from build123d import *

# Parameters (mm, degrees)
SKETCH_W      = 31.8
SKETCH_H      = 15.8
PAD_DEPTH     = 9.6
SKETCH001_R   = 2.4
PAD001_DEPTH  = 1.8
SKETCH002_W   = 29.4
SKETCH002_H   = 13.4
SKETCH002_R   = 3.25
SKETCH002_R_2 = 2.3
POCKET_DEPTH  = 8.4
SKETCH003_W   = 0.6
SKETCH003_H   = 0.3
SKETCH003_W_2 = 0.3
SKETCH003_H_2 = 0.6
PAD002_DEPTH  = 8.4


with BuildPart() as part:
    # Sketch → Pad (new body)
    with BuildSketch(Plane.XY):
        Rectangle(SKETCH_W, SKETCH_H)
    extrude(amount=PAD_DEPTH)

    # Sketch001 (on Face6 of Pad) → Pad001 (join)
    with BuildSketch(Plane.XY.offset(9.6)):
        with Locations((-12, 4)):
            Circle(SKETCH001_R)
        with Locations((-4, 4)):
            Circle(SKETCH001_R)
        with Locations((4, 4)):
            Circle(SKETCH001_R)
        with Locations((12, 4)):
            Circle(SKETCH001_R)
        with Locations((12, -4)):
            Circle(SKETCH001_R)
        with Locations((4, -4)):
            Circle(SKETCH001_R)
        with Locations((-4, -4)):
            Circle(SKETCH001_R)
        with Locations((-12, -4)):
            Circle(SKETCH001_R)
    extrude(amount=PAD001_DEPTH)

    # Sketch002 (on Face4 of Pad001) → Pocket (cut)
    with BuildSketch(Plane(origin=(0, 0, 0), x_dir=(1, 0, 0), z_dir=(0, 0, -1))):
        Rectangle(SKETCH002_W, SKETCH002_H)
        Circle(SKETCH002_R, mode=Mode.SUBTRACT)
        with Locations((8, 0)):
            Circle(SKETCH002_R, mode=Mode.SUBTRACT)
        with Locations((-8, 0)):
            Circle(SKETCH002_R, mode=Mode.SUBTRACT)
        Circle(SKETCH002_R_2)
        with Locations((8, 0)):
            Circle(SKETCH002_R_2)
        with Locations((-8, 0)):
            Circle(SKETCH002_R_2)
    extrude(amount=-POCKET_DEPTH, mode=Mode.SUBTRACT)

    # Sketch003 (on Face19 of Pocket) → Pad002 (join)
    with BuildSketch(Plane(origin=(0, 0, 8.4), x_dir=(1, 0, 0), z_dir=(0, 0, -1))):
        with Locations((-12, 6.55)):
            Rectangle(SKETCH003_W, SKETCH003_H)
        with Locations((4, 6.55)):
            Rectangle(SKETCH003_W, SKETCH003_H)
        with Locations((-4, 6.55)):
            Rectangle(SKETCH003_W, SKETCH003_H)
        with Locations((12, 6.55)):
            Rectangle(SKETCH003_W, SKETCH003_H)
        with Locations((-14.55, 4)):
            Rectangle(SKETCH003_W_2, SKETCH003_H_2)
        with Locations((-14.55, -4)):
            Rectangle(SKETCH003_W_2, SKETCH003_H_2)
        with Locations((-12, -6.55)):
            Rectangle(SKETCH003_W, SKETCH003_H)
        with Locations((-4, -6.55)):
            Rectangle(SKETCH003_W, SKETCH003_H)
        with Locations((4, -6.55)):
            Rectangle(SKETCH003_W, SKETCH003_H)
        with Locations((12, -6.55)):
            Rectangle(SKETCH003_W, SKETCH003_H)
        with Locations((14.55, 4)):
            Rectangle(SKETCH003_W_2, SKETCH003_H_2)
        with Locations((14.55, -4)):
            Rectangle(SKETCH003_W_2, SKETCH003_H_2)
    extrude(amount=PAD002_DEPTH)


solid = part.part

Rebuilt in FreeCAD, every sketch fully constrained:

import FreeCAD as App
import Part
import Sketcher
from FreeCAD import Vector

doc = App.newDocument("Part")
body = doc.addObject("PartDesign::Body", "Body")

# Sketch on XY plane
sketch1 = doc.addObject("Sketcher::SketchObject", "Sketch")
body.addObject(sketch1)
sketch1.AttachmentSupport = (doc.XY_Plane, [""])
sketch1.MapMode = "FlatFace"
sketch1.addGeometry(Part.LineSegment(Vector(-16, 8, 0), Vector(-16, -8, 0)), False)
sketch1.addGeometry(Part.LineSegment(Vector(-16, -8, 0), Vector(16, -8, 0)), False)
sketch1.addGeometry(Part.LineSegment(Vector(16, -8, 0), Vector(16, 8, 0)), False)
sketch1.addGeometry(Part.LineSegment(Vector(16, 8, 0), Vector(-16, 8, 0)), False)
sketch1.addConstraint(Sketcher.Constraint("Coincident", 0, 2, 1, 1))
sketch1.addConstraint(Sketcher.Constraint("Coincident", 1, 2, 2, 1))
sketch1.addConstraint(Sketcher.Constraint("Coincident", 2, 2, 3, 1))
sketch1.addConstraint(Sketcher.Constraint("Coincident", 3, 2, 0, 1))
sketch1.addConstraint(Sketcher.Constraint("Vertical", 0))
sketch1.addConstraint(Sketcher.Constraint("Horizontal", 1))
sketch1.addConstraint(Sketcher.Constraint("Vertical", 2))
sketch1.addConstraint(Sketcher.Constraint("Horizontal", 3))
sketch1.addConstraint(Sketcher.Constraint("Symmetric", 0, 2, 2, 2, -1, 1))
sketch1.addConstraint(Sketcher.Constraint("DistanceX", 1, 1, 1, 2, 31.8))
sketch1.addConstraint(Sketcher.Constraint("DistanceY", 0, 2, 0, 1, 15.8))
pad1 = doc.addObject("PartDesign::Pad", "Pad")
body.addObject(pad1)
pad1.Profile = sketch1
pad1.Length = 9.6

# Sketch on XY plane
sketch2 = doc.addObject("Sketcher::SketchObject", "Sketch001")
body.addObject(sketch2)
sketch2.AttachmentSupport = (doc.XY_Plane, [""])
sketch2.MapMode = "FlatFace"
sketch2.AttachmentOffset = App.Placement(Vector(0, 0, 9.6), App.Rotation())
sketch2.addGeometry(Part.Circle(Vector(-12, 4, 0), Vector(0, 0, 1), 2.4), False)
sketch2.addGeometry(Part.Circle(Vector(-4, 4, 0), Vector(0, 0, 1), 2.4), False)
sketch2.addGeometry(Part.Circle(Vector(4, 4, 0), Vector(0, 0, 1), 2.4), False)
sketch2.addGeometry(Part.Circle(Vector(12, 4, 0), Vector(0, 0, 1), 2.4), False)
sketch2.addGeometry(Part.Circle(Vector(12, -4, 0), Vector(0, 0, 1), 2.4), False)
sketch2.addGeometry(Part.Circle(Vector(4, -4, 0), Vector(0, 0, 1), 2.4), False)
sketch2.addGeometry(Part.Circle(Vector(-4, -4, 0), Vector(0, 0, 1), 2.4), False)
sketch2.addGeometry(Part.Circle(Vector(-12, -4, 0), Vector(0, 0, 1), 2.4), False)
sketch2.addConstraint(Sketcher.Constraint("Equal", 0, 1))
sketch2.addConstraint(Sketcher.Constraint("Equal", 1, 2))
sketch2.addConstraint(Sketcher.Constraint("Equal", 2, 3))
sketch2.addConstraint(Sketcher.Constraint("Equal", 3, 4))
sketch2.addConstraint(Sketcher.Constraint("Equal", 4, 5))
sketch2.addConstraint(Sketcher.Constraint("Equal", 5, 6))
sketch2.addConstraint(Sketcher.Constraint("Equal", 6, 7))
sketch2.addConstraint(Sketcher.Constraint("Symmetric", 0, 3, 4, 3, -1, 1))
sketch2.addConstraint(Sketcher.Constraint("Symmetric", 1, 3, 5, 3, -1, 1))
sketch2.addConstraint(Sketcher.Constraint("Symmetric", 2, 3, 6, 3, -1, 1))
sketch2.addConstraint(Sketcher.Constraint("Symmetric", 3, 3, 7, 3, -1, 1))
sketch2.addConstraint(Sketcher.Constraint("Symmetric", 1, 3, 2, 3, -2))
sketch2.addConstraint(Sketcher.Constraint("Symmetric", 0, 3, 3, 3, -2))
sketch2.addConstraint(Sketcher.Constraint("Horizontal", 0, 3, 1, 3))
sketch2.addConstraint(Sketcher.Constraint("Diameter", 0, 4.8))
sketch2.addConstraint(Sketcher.Constraint("DistanceX", 0, 3, -1, 1, 12.0))
sketch2.addConstraint(Sketcher.Constraint("DistanceY", -1, 1, 0, 3, 4.0))
sketch2.addConstraint(Sketcher.Constraint("DistanceX", 1, 3, -1, 1, 4.0))
pad2 = doc.addObject("PartDesign::Pad", "Pad001")
body.addObject(pad2)
pad2.Profile = sketch2
pad2.Length = 1.8

# Sketch on XY plane
sketch3 = doc.addObject("Sketcher::SketchObject", "Sketch002")
body.addObject(sketch3)
sketch3.AttachmentSupport = (doc.XY_Plane, [""])
sketch3.MapMode = "FlatFace"
sketch3.addGeometry(Part.LineSegment(Vector(-14.7, -6.7, 0), Vector(-14.7, 6.7, 0)), False)
sketch3.addGeometry(Part.LineSegment(Vector(-14.7, 6.7, 0), Vector(14.7, 6.7, 0)), False)
sketch3.addGeometry(Part.LineSegment(Vector(14.7, 6.7, 0), Vector(14.7, -6.7, 0)), False)
sketch3.addGeometry(Part.LineSegment(Vector(14.7, -6.7, 0), Vector(-14.7, -6.7, 0)), False)
sketch3.addGeometry(Part.Circle(Vector(-8, 0, 0), Vector(0, 0, 1), 3.2), False)
sketch3.addGeometry(Part.Circle(Vector(0, 0, 0), Vector(0, 0, 1), 3.2), False)
sketch3.addGeometry(Part.Circle(Vector(8, 0, 0), Vector(0, 0, 1), 3.2), False)
sketch3.addGeometry(Part.Circle(Vector(0, 0, 0), Vector(0, 0, 1), 2.3), False)
sketch3.addGeometry(Part.Circle(Vector(8, 0, 0), Vector(0, 0, 1), 2.3), False)
sketch3.addGeometry(Part.Circle(Vector(-8, 0, 0), Vector(0, 0, 1), 2.3), False)
sketch3.addConstraint(Sketcher.Constraint("Coincident", 0, 2, 1, 1))
sketch3.addConstraint(Sketcher.Constraint("Coincident", 1, 2, 2, 1))
sketch3.addConstraint(Sketcher.Constraint("Coincident", 2, 2, 3, 1))
sketch3.addConstraint(Sketcher.Constraint("Coincident", 3, 2, 0, 1))
sketch3.addConstraint(Sketcher.Constraint("Vertical", 0))
sketch3.addConstraint(Sketcher.Constraint("Horizontal", 1))
sketch3.addConstraint(Sketcher.Constraint("Vertical", 2))
sketch3.addConstraint(Sketcher.Constraint("Horizontal", 3))
sketch3.addConstraint(Sketcher.Constraint("Coincident", 5, 3, -1, 1))
sketch3.addConstraint(Sketcher.Constraint("Coincident", 7, 3, -1, 1))
sketch3.addConstraint(Sketcher.Constraint("Coincident", 8, 3, 6, 3))
sketch3.addConstraint(Sketcher.Constraint("Coincident", 9, 3, 4, 3))
sketch3.addConstraint(Sketcher.Constraint("Equal", 4, 5))
sketch3.addConstraint(Sketcher.Constraint("Equal", 5, 6))
sketch3.addConstraint(Sketcher.Constraint("Equal", 7, 8))
sketch3.addConstraint(Sketcher.Constraint("Equal", 8, 9))
sketch3.addConstraint(Sketcher.Constraint("Symmetric", 4, 3, 6, 3, -1, 1))
sketch3.addConstraint(Sketcher.Constraint("Symmetric", 0, 2, 2, 2, -1, 1))
sketch3.addConstraint(Sketcher.Constraint("PointOnObject", 4, 3, -1))
sketch3.addConstraint(Sketcher.Constraint("Diameter", 4, 6.5))
sketch3.addConstraint(Sketcher.Constraint("Diameter", 7, 4.6))
sketch3.addConstraint(Sketcher.Constraint("DistanceX", 1, 1, 1, 2, 29.4))
sketch3.addConstraint(Sketcher.Constraint("DistanceY", 0, 1, 0, 2, 13.4))
sketch3.addConstraint(Sketcher.Constraint("DistanceX", 4, 3, -1, 1, 8.0))
pocket1 = doc.addObject("PartDesign::Pocket", "Pocket")
body.addObject(pocket1)
pocket1.Profile = sketch3
pocket1.Length = 8.4
pocket1.Reversed = True

# Sketch on XY plane
sketch4 = doc.addObject("Sketcher::SketchObject", "Sketch003")
body.addObject(sketch4)
sketch4.AttachmentSupport = (doc.XY_Plane, [""])
sketch4.MapMode = "FlatFace"
sketch4.AttachmentOffset = App.Placement(Vector(0, 0, 8.4), App.Rotation())
sketch4.addGeometry(Part.LineSegment(Vector(-12.3, -6.7, 0), Vector(-12.3, -6.4, 0)), False)
sketch4.addGeometry(Part.LineSegment(Vector(-12.3, -6.4, 0), Vector(-11.7, -6.4, 0)), False)
sketch4.addGeometry(Part.LineSegment(Vector(-11.7, -6.4, 0), Vector(-11.7, -6.7, 0)), False)
sketch4.addGeometry(Part.LineSegment(Vector(-11.7, -6.7, 0), Vector(-12.3, -6.7, 0)), False)
sketch4.addGeometry(Part.LineSegment(Vector(3.7, -6.7, 0), Vector(3.7, -6.4, 0)), False)
sketch4.addGeometry(Part.LineSegment(Vector(3.7, -6.4, 0), Vector(4.3, -6.4, 0)), False)
sketch4.addGeometry(Part.LineSegment(Vector(4.3, -6.4, 0), Vector(4.3, -6.7, 0)), False)
sketch4.addGeometry(Part.LineSegment(Vector(4.3, -6.7, 0), Vector(3.7, -6.7, 0)), False)
sketch4.addGeometry(Part.LineSegment(Vector(-4.3, -6.7, 0), Vector(-4.3, -6.4, 0)), False)
sketch4.addGeometry(Part.LineSegment(Vector(-4.3, -6.4, 0), Vector(-3.7, -6.4, 0)), False)
sketch4.addGeometry(Part.LineSegment(Vector(-3.7, -6.4, 0), Vector(-3.7, -6.7, 0)), False)
sketch4.addGeometry(Part.LineSegment(Vector(-3.7, -6.7, 0), Vector(-4.3, -6.7, 0)), False)
sketch4.addGeometry(Part.LineSegment(Vector(11.7, -6.7, 0), Vector(11.7, -6.4, 0)), False)
sketch4.addGeometry(Part.LineSegment(Vector(11.7, -6.4, 0), Vector(12.3, -6.4, 0)), False)
sketch4.addGeometry(Part.LineSegment(Vector(12.3, -6.4, 0), Vector(12.3, -6.7, 0)), False)
sketch4.addGeometry(Part.LineSegment(Vector(12.3, -6.7, 0), Vector(11.7, -6.7, 0)), False)
sketch4.addGeometry(Part.LineSegment(Vector(-14.7, -4.3, 0), Vector(-14.7, -3.7, 0)), False)
sketch4.addGeometry(Part.LineSegment(Vector(-14.7, -3.7, 0), Vector(-14.4, -3.7, 0)), False)
sketch4.addGeometry(Part.LineSegment(Vector(-14.4, -3.7, 0), Vector(-14.4, -4.3, 0)), False)
sketch4.addGeometry(Part.LineSegment(Vector(-14.4, -4.3, 0), Vector(-14.7, -4.3, 0)), False)
sketch4.addGeometry(Part.LineSegment(Vector(-14.7, 3.7, 0), Vector(-14.7, 4.3, 0)), False)
sketch4.addGeometry(Part.LineSegment(Vector(-14.7, 4.3, 0), Vector(-14.4, 4.3, 0)), False)
sketch4.addGeometry(Part.LineSegment(Vector(-14.4, 4.3, 0), Vector(-14.4, 3.7, 0)), False)
sketch4.addGeometry(Part.LineSegment(Vector(-14.4, 3.7, 0), Vector(-14.7, 3.7, 0)), False)
sketch4.addGeometry(Part.LineSegment(Vector(-12.3, 6.4, 0), Vector(-12.3, 6.7, 0)), False)
sketch4.addGeometry(Part.LineSegment(Vector(-12.3, 6.7, 0), Vector(-11.7, 6.7, 0)), False)
sketch4.addGeometry(Part.LineSegment(Vector(-11.7, 6.7, 0), Vector(-11.7, 6.4, 0)), False)
sketch4.addGeometry(Part.LineSegment(Vector(-11.7, 6.4, 0), Vector(-12.3, 6.4, 0)), False)
sketch4.addGeometry(Part.LineSegment(Vector(-4.3, 6.4, 0), Vector(-4.3, 6.7, 0)), False)
sketch4.addGeometry(Part.LineSegment(Vector(-4.3, 6.7, 0), Vector(-3.7, 6.7, 0)), False)
sketch4.addGeometry(Part.LineSegment(Vector(-3.7, 6.7, 0), Vector(-3.7, 6.4, 0)), False)
sketch4.addGeometry(Part.LineSegment(Vector(-3.7, 6.4, 0), Vector(-4.3, 6.4, 0)), False)
sketch4.addGeometry(Part.LineSegment(Vector(3.7, 6.4, 0), Vector(3.7, 6.7, 0)), False)
sketch4.addGeometry(Part.LineSegment(Vector(3.7, 6.7, 0), Vector(4.3, 6.7, 0)), False)
sketch4.addGeometry(Part.LineSegment(Vector(4.3, 6.7, 0), Vector(4.3, 6.4, 0)), False)
sketch4.addGeometry(Part.LineSegment(Vector(4.3, 6.4, 0), Vector(3.7, 6.4, 0)), False)
sketch4.addGeometry(Part.LineSegment(Vector(11.7, 6.4, 0), Vector(11.7, 6.7, 0)), False)
sketch4.addGeometry(Part.LineSegment(Vector(11.7, 6.7, 0), Vector(12.3, 6.7, 0)), False)
sketch4.addGeometry(Part.LineSegment(Vector(12.3, 6.7, 0), Vector(12.3, 6.4, 0)), False)
sketch4.addGeometry(Part.LineSegment(Vector(12.3, 6.4, 0), Vector(11.7, 6.4, 0)), False)
sketch4.addGeometry(Part.LineSegment(Vector(14.4, -4.3, 0), Vector(14.4, -3.7, 0)), False)
sketch4.addGeometry(Part.LineSegment(Vector(14.4, -3.7, 0), Vector(14.7, -3.7, 0)), False)
sketch4.addGeometry(Part.LineSegment(Vector(14.7, -3.7, 0), Vector(14.7, -4.3, 0)), False)
sketch4.addGeometry(Part.LineSegment(Vector(14.7, -4.3, 0), Vector(14.4, -4.3, 0)), False)
sketch4.addGeometry(Part.LineSegment(Vector(14.4, 3.7, 0), Vector(14.4, 4.3, 0)), False)
sketch4.addGeometry(Part.LineSegment(Vector(14.4, 4.3, 0), Vector(14.7, 4.3, 0)), False)
sketch4.addGeometry(Part.LineSegment(Vector(14.7, 4.3, 0), Vector(14.7, 3.7, 0)), False)
sketch4.addGeometry(Part.LineSegment(Vector(14.7, 3.7, 0), Vector(14.4, 3.7, 0)), False)
sketch4.addConstraint(Sketcher.Constraint("Coincident", 0, 2, 1, 1))
sketch4.addConstraint(Sketcher.Constraint("Coincident", 1, 2, 2, 1))
sketch4.addConstraint(Sketcher.Constraint("Coincident", 2, 2, 3, 1))
sketch4.addConstraint(Sketcher.Constraint("Coincident", 3, 2, 0, 1))
sketch4.addConstraint(Sketcher.Constraint("Coincident", 4, 2, 5, 1))
sketch4.addConstraint(Sketcher.Constraint("Coincident", 5, 2, 6, 1))
sketch4.addConstraint(Sketcher.Constraint("Coincident", 6, 2, 7, 1))
sketch4.addConstraint(Sketcher.Constraint("Coincident", 7, 2, 4, 1))
sketch4.addConstraint(Sketcher.Constraint("Coincident", 8, 2, 9, 1))
sketch4.addConstraint(Sketcher.Constraint("Coincident", 9, 2, 10, 1))
sketch4.addConstraint(Sketcher.Constraint("Coincident", 10, 2, 11, 1))
sketch4.addConstraint(Sketcher.Constraint("Coincident", 11, 2, 8, 1))
sketch4.addConstraint(Sketcher.Constraint("Coincident", 12, 2, 13, 1))
sketch4.addConstraint(Sketcher.Constraint("Coincident", 13, 2, 14, 1))
sketch4.addConstraint(Sketcher.Constraint("Coincident", 14, 2, 15, 1))
sketch4.addConstraint(Sketcher.Constraint("Coincident", 15, 2, 12, 1))
sketch4.addConstraint(Sketcher.Constraint("Coincident", 16, 2, 17, 1))
sketch4.addConstraint(Sketcher.Constraint("Coincident", 17, 2, 18, 1))
sketch4.addConstraint(Sketcher.Constraint("Coincident", 18, 2, 19, 1))
sketch4.addConstraint(Sketcher.Constraint("Coincident", 19, 2, 16, 1))
sketch4.addConstraint(Sketcher.Constraint("Coincident", 20, 2, 21, 1))
sketch4.addConstraint(Sketcher.Constraint("Coincident", 21, 2, 22, 1))
sketch4.addConstraint(Sketcher.Constraint("Coincident", 22, 2, 23, 1))
sketch4.addConstraint(Sketcher.Constraint("Coincident", 23, 2, 20, 1))
sketch4.addConstraint(Sketcher.Constraint("Coincident", 24, 2, 25, 1))
sketch4.addConstraint(Sketcher.Constraint("Coincident", 25, 2, 26, 1))
sketch4.addConstraint(Sketcher.Constraint("Coincident", 26, 2, 27, 1))
sketch4.addConstraint(Sketcher.Constraint("Coincident", 27, 2, 24, 1))
sketch4.addConstraint(Sketcher.Constraint("Coincident", 28, 2, 29, 1))
sketch4.addConstraint(Sketcher.Constraint("Coincident", 29, 2, 30, 1))
sketch4.addConstraint(Sketcher.Constraint("Coincident", 30, 2, 31, 1))
sketch4.addConstraint(Sketcher.Constraint("Coincident", 31, 2, 28, 1))
sketch4.addConstraint(Sketcher.Constraint("Coincident", 32, 2, 33, 1))
sketch4.addConstraint(Sketcher.Constraint("Coincident", 33, 2, 34, 1))
sketch4.addConstraint(Sketcher.Constraint("Coincident", 34, 2, 35, 1))
sketch4.addConstraint(Sketcher.Constraint("Coincident", 35, 2, 32, 1))
sketch4.addConstraint(Sketcher.Constraint("Coincident", 36, 2, 37, 1))
sketch4.addConstraint(Sketcher.Constraint("Coincident", 37, 2, 38, 1))
sketch4.addConstraint(Sketcher.Constraint("Coincident", 38, 2, 39, 1))
sketch4.addConstraint(Sketcher.Constraint("Coincident", 39, 2, 36, 1))
sketch4.addConstraint(Sketcher.Constraint("Coincident", 40, 2, 41, 1))
sketch4.addConstraint(Sketcher.Constraint("Coincident", 41, 2, 42, 1))
sketch4.addConstraint(Sketcher.Constraint("Coincident", 42, 2, 43, 1))
sketch4.addConstraint(Sketcher.Constraint("Coincident", 43, 2, 40, 1))
sketch4.addConstraint(Sketcher.Constraint("Coincident", 44, 2, 45, 1))
sketch4.addConstraint(Sketcher.Constraint("Coincident", 45, 2, 46, 1))
sketch4.addConstraint(Sketcher.Constraint("Coincident", 46, 2, 47, 1))
sketch4.addConstraint(Sketcher.Constraint("Coincident", 47, 2, 44, 1))
sketch4.addConstraint(Sketcher.Constraint("Vertical", 0))
sketch4.addConstraint(Sketcher.Constraint("Horizontal", 1))
sketch4.addConstraint(Sketcher.Constraint("Vertical", 2))
sketch4.addConstraint(Sketcher.Constraint("Horizontal", 3))
sketch4.addConstraint(Sketcher.Constraint("Vertical", 4))
sketch4.addConstraint(Sketcher.Constraint("Horizontal", 5))
sketch4.addConstraint(Sketcher.Constraint("Vertical", 6))
sketch4.addConstraint(Sketcher.Constraint("Horizontal", 7))
sketch4.addConstraint(Sketcher.Constraint("Vertical", 8))
sketch4.addConstraint(Sketcher.Constraint("Horizontal", 9))
sketch4.addConstraint(Sketcher.Constraint("Vertical", 10))
sketch4.addConstraint(Sketcher.Constraint("Horizontal", 11))
sketch4.addConstraint(Sketcher.Constraint("Vertical", 12))
sketch4.addConstraint(Sketcher.Constraint("Horizontal", 13))
sketch4.addConstraint(Sketcher.Constraint("Vertical", 14))
sketch4.addConstraint(Sketcher.Constraint("Horizontal", 15))
sketch4.addConstraint(Sketcher.Constraint("Vertical", 16))
sketch4.addConstraint(Sketcher.Constraint("Horizontal", 17))
sketch4.addConstraint(Sketcher.Constraint("Vertical", 18))
sketch4.addConstraint(Sketcher.Constraint("Horizontal", 19))
sketch4.addConstraint(Sketcher.Constraint("Vertical", 20))
sketch4.addConstraint(Sketcher.Constraint("Horizontal", 21))
sketch4.addConstraint(Sketcher.Constraint("Vertical", 22))
sketch4.addConstraint(Sketcher.Constraint("Horizontal", 23))
sketch4.addConstraint(Sketcher.Constraint("Vertical", 24))
sketch4.addConstraint(Sketcher.Constraint("Horizontal", 25))
sketch4.addConstraint(Sketcher.Constraint("Vertical", 26))
sketch4.addConstraint(Sketcher.Constraint("Horizontal", 27))
sketch4.addConstraint(Sketcher.Constraint("Vertical", 28))
sketch4.addConstraint(Sketcher.Constraint("Horizontal", 29))
sketch4.addConstraint(Sketcher.Constraint("Vertical", 30))
sketch4.addConstraint(Sketcher.Constraint("Horizontal", 31))
sketch4.addConstraint(Sketcher.Constraint("Vertical", 32))
sketch4.addConstraint(Sketcher.Constraint("Horizontal", 33))
sketch4.addConstraint(Sketcher.Constraint("Vertical", 34))
sketch4.addConstraint(Sketcher.Constraint("Horizontal", 35))
sketch4.addConstraint(Sketcher.Constraint("Vertical", 36))
sketch4.addConstraint(Sketcher.Constraint("Horizontal", 37))
sketch4.addConstraint(Sketcher.Constraint("Vertical", 38))
sketch4.addConstraint(Sketcher.Constraint("Horizontal", 39))
sketch4.addConstraint(Sketcher.Constraint("Vertical", 40))
sketch4.addConstraint(Sketcher.Constraint("Horizontal", 41))
sketch4.addConstraint(Sketcher.Constraint("Vertical", 42))
sketch4.addConstraint(Sketcher.Constraint("Horizontal", 43))
sketch4.addConstraint(Sketcher.Constraint("Vertical", 44))
sketch4.addConstraint(Sketcher.Constraint("Horizontal", 45))
sketch4.addConstraint(Sketcher.Constraint("Vertical", 46))
sketch4.addConstraint(Sketcher.Constraint("Horizontal", 47))
sketch4.addConstraint(Sketcher.Constraint("Symmetric", 14, 2, 24, 2, -1, 1))
sketch4.addConstraint(Sketcher.Constraint("Symmetric", 12, 2, 26, 2, -1, 1))
sketch4.addConstraint(Sketcher.Constraint("Symmetric", 6, 2, 28, 2, -1, 1))
sketch4.addConstraint(Sketcher.Constraint("Symmetric", 4, 2, 30, 2, -1, 1))
sketch4.addConstraint(Sketcher.Constraint("Symmetric", 10, 2, 32, 2, -1, 1))
sketch4.addConstraint(Sketcher.Constraint("Symmetric", 8, 2, 34, 2, -1, 1))
sketch4.addConstraint(Sketcher.Constraint("Symmetric", 2, 2, 36, 2, -1, 1))
sketch4.addConstraint(Sketcher.Constraint("Symmetric", 0, 2, 38, 2, -1, 1))
sketch4.addConstraint(Sketcher.Constraint("Symmetric", 22, 2, 40, 2, -1, 1))
sketch4.addConstraint(Sketcher.Constraint("Symmetric", 20, 2, 42, 2, -1, 1))
sketch4.addConstraint(Sketcher.Constraint("Symmetric", 18, 2, 44, 2, -1, 1))
sketch4.addConstraint(Sketcher.Constraint("Symmetric", 16, 2, 46, 2, -1, 1))
sketch4.addConstraint(Sketcher.Constraint("Symmetric", 5, 2, 8, 2, -2))
sketch4.addConstraint(Sketcher.Constraint("Symmetric", 7, 2, 10, 2, -2))
sketch4.addConstraint(Sketcher.Constraint("Symmetric", 1, 2, 12, 2, -2))
sketch4.addConstraint(Sketcher.Constraint("Symmetric", 3, 2, 14, 2, -2))
sketch4.addConstraint(Sketcher.Constraint("Symmetric", 17, 2, 40, 2, -2))
sketch4.addConstraint(Sketcher.Constraint("Symmetric", 19, 2, 42, 2, -2))
sketch4.addConstraint(Sketcher.Constraint("Horizontal", 1, 2, 4, 2))
sketch4.addConstraint(Sketcher.Constraint("Horizontal", 3, 2, 6, 2))
sketch4.addConstraint(Sketcher.Constraint("Equal", 3, 5))
sketch4.addConstraint(Sketcher.Constraint("Equal", 47, 0))
sketch4.addConstraint(Sketcher.Constraint("Equal", 39, 16))
sketch4.addConstraint(Sketcher.Constraint("DistanceX", 1, 1, 1, 2, 0.6))
sketch4.addConstraint(Sketcher.Constraint("DistanceX", 17, 1, 17, 2, 0.3))
sketch4.addConstraint(Sketcher.Constraint("DistanceX", 0, 2, 4, 2, 16.0))
sketch4.addConstraint(Sketcher.Constraint("DistanceX", 0, 2, 8, 2, 8.0))
sketch4.addConstraint(Sketcher.Constraint("DistanceY", 3, 2, 16, 2, 3.0))
sketch4.addConstraint(Sketcher.Constraint("DistanceX", 16, 2, 1, 2, 3.0))
sketch4.addConstraint(Sketcher.Constraint("DistanceY", 16, 2, 20, 2, 8.0))
pad3 = doc.addObject("PartDesign::Pad", "Pad002")
body.addObject(pad3)
pad3.Profile = sketch4
pad3.Length = 8.4
pad3.Reversed = True

doc.recompute()
